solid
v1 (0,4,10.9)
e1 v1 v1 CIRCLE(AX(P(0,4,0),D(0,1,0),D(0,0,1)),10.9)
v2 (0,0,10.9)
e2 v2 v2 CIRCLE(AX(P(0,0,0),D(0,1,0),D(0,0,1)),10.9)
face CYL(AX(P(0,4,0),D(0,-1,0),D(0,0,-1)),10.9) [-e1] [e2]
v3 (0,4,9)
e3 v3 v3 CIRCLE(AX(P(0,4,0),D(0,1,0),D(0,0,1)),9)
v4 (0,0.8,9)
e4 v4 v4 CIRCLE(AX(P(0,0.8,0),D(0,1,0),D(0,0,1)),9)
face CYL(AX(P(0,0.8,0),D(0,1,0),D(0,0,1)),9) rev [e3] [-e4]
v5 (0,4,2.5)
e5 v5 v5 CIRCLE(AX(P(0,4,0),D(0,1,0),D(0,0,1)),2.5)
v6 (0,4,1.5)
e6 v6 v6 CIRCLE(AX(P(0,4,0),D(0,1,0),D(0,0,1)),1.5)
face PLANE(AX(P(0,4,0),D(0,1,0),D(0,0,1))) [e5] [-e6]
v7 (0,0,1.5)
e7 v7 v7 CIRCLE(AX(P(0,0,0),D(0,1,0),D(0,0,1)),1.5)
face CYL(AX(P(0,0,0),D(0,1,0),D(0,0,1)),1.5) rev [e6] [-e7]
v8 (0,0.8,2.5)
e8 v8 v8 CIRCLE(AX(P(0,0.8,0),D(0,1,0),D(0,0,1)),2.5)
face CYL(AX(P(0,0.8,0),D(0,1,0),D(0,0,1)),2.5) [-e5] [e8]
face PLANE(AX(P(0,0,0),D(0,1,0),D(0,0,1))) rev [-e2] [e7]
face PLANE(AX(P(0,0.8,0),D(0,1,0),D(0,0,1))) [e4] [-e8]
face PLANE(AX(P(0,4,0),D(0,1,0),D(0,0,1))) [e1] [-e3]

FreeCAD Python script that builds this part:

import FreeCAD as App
import Part
import Sketcher
Q = App.Units.Quantity

doc = App.newDocument("Part")
body = doc.addObject("PartDesign::Body", "Body")

# Sketch on XZ plane
sketch1 = body.newObject("Sketcher::SketchObject", "Sketch")
sketch1.AttachmentSupport = (doc.getObject("XZ_Plane"), [""])
sketch1.MapMode = "FlatFace"
sketch1.addGeometry(Part.Circle(App.Vector(0, 0, 0), App.Vector(0, 0, 1), 11), False)
sketch1.addConstraint([
    Sketcher.Constraint("Coincident", 0, 3, -1, 1),
    Sketcher.Constraint("Diameter", 0, Q("21.8 mm")),
])
pad1 = body.newObject("PartDesign::Pad", "Pad")
pad1.Profile = sketch1
pad1.Length = 4
pad1.Reversed = True

# Sketch on XZ plane
sketch2 = body.newObject("Sketcher::SketchObject", "Sketch001")
sketch2.AttachmentSupport = (doc.getObject("XZ_Plane"), [""])
sketch2.MapMode = "FlatFace"
sketch2.AttachmentOffset = App.Placement(App.Vector(0, 0, -4), App.Rotation())
sketch2.addGeometry([
    Part.Circle(App.Vector(0, 0, 0), App.Vector(0, 0, 1), 9),
    Part.Circle(App.Vector(0, 0, 0), App.Vector(0, 0, 1), 2.5),
], False)
sketch2.addConstraint([
    Sketcher.Constraint("Coincident", 0, 3, -1, 1),
    Sketcher.Constraint("Coincident", 1, 3, -1, 1),
    Sketcher.Constraint("Diameter", 0, Q("18 mm")),
    Sketcher.Constraint("Diameter", 1, Q("5 mm")),
])
pocket1 = body.newObject("PartDesign::Pocket", "Pocket")
pocket1.Profile = sketch2
pocket1.Length = 3.2
pocket1.Reversed = True

# Sketch on XZ plane
sketch3 = body.newObject("Sketcher::SketchObject", "Sketch002")
sketch3.AttachmentSupport = (doc.getObject("XZ_Plane"), [""])
sketch3.MapMode = "FlatFace"
sketch3.AttachmentOffset = App.Placement(App.Vector(0, 0, -4), App.Rotation())
sketch3.addGeometry(Part.Circle(App.Vector(0, 0, 0), App.Vector(0, 0, 1), 1.5), False)
sketch3.addConstraint([
    Sketcher.Constraint("Coincident", 0, 3, -1, 1),
    Sketcher.Constraint("Diameter", 0, Q("3 mm")),
])
pocket2 = body.newObject("PartDesign::Pocket", "Pocket001")
pocket2.Profile = sketch3
pocket2.Type = "ThroughAll"
pocket2.Reversed = True

doc.recompute()
